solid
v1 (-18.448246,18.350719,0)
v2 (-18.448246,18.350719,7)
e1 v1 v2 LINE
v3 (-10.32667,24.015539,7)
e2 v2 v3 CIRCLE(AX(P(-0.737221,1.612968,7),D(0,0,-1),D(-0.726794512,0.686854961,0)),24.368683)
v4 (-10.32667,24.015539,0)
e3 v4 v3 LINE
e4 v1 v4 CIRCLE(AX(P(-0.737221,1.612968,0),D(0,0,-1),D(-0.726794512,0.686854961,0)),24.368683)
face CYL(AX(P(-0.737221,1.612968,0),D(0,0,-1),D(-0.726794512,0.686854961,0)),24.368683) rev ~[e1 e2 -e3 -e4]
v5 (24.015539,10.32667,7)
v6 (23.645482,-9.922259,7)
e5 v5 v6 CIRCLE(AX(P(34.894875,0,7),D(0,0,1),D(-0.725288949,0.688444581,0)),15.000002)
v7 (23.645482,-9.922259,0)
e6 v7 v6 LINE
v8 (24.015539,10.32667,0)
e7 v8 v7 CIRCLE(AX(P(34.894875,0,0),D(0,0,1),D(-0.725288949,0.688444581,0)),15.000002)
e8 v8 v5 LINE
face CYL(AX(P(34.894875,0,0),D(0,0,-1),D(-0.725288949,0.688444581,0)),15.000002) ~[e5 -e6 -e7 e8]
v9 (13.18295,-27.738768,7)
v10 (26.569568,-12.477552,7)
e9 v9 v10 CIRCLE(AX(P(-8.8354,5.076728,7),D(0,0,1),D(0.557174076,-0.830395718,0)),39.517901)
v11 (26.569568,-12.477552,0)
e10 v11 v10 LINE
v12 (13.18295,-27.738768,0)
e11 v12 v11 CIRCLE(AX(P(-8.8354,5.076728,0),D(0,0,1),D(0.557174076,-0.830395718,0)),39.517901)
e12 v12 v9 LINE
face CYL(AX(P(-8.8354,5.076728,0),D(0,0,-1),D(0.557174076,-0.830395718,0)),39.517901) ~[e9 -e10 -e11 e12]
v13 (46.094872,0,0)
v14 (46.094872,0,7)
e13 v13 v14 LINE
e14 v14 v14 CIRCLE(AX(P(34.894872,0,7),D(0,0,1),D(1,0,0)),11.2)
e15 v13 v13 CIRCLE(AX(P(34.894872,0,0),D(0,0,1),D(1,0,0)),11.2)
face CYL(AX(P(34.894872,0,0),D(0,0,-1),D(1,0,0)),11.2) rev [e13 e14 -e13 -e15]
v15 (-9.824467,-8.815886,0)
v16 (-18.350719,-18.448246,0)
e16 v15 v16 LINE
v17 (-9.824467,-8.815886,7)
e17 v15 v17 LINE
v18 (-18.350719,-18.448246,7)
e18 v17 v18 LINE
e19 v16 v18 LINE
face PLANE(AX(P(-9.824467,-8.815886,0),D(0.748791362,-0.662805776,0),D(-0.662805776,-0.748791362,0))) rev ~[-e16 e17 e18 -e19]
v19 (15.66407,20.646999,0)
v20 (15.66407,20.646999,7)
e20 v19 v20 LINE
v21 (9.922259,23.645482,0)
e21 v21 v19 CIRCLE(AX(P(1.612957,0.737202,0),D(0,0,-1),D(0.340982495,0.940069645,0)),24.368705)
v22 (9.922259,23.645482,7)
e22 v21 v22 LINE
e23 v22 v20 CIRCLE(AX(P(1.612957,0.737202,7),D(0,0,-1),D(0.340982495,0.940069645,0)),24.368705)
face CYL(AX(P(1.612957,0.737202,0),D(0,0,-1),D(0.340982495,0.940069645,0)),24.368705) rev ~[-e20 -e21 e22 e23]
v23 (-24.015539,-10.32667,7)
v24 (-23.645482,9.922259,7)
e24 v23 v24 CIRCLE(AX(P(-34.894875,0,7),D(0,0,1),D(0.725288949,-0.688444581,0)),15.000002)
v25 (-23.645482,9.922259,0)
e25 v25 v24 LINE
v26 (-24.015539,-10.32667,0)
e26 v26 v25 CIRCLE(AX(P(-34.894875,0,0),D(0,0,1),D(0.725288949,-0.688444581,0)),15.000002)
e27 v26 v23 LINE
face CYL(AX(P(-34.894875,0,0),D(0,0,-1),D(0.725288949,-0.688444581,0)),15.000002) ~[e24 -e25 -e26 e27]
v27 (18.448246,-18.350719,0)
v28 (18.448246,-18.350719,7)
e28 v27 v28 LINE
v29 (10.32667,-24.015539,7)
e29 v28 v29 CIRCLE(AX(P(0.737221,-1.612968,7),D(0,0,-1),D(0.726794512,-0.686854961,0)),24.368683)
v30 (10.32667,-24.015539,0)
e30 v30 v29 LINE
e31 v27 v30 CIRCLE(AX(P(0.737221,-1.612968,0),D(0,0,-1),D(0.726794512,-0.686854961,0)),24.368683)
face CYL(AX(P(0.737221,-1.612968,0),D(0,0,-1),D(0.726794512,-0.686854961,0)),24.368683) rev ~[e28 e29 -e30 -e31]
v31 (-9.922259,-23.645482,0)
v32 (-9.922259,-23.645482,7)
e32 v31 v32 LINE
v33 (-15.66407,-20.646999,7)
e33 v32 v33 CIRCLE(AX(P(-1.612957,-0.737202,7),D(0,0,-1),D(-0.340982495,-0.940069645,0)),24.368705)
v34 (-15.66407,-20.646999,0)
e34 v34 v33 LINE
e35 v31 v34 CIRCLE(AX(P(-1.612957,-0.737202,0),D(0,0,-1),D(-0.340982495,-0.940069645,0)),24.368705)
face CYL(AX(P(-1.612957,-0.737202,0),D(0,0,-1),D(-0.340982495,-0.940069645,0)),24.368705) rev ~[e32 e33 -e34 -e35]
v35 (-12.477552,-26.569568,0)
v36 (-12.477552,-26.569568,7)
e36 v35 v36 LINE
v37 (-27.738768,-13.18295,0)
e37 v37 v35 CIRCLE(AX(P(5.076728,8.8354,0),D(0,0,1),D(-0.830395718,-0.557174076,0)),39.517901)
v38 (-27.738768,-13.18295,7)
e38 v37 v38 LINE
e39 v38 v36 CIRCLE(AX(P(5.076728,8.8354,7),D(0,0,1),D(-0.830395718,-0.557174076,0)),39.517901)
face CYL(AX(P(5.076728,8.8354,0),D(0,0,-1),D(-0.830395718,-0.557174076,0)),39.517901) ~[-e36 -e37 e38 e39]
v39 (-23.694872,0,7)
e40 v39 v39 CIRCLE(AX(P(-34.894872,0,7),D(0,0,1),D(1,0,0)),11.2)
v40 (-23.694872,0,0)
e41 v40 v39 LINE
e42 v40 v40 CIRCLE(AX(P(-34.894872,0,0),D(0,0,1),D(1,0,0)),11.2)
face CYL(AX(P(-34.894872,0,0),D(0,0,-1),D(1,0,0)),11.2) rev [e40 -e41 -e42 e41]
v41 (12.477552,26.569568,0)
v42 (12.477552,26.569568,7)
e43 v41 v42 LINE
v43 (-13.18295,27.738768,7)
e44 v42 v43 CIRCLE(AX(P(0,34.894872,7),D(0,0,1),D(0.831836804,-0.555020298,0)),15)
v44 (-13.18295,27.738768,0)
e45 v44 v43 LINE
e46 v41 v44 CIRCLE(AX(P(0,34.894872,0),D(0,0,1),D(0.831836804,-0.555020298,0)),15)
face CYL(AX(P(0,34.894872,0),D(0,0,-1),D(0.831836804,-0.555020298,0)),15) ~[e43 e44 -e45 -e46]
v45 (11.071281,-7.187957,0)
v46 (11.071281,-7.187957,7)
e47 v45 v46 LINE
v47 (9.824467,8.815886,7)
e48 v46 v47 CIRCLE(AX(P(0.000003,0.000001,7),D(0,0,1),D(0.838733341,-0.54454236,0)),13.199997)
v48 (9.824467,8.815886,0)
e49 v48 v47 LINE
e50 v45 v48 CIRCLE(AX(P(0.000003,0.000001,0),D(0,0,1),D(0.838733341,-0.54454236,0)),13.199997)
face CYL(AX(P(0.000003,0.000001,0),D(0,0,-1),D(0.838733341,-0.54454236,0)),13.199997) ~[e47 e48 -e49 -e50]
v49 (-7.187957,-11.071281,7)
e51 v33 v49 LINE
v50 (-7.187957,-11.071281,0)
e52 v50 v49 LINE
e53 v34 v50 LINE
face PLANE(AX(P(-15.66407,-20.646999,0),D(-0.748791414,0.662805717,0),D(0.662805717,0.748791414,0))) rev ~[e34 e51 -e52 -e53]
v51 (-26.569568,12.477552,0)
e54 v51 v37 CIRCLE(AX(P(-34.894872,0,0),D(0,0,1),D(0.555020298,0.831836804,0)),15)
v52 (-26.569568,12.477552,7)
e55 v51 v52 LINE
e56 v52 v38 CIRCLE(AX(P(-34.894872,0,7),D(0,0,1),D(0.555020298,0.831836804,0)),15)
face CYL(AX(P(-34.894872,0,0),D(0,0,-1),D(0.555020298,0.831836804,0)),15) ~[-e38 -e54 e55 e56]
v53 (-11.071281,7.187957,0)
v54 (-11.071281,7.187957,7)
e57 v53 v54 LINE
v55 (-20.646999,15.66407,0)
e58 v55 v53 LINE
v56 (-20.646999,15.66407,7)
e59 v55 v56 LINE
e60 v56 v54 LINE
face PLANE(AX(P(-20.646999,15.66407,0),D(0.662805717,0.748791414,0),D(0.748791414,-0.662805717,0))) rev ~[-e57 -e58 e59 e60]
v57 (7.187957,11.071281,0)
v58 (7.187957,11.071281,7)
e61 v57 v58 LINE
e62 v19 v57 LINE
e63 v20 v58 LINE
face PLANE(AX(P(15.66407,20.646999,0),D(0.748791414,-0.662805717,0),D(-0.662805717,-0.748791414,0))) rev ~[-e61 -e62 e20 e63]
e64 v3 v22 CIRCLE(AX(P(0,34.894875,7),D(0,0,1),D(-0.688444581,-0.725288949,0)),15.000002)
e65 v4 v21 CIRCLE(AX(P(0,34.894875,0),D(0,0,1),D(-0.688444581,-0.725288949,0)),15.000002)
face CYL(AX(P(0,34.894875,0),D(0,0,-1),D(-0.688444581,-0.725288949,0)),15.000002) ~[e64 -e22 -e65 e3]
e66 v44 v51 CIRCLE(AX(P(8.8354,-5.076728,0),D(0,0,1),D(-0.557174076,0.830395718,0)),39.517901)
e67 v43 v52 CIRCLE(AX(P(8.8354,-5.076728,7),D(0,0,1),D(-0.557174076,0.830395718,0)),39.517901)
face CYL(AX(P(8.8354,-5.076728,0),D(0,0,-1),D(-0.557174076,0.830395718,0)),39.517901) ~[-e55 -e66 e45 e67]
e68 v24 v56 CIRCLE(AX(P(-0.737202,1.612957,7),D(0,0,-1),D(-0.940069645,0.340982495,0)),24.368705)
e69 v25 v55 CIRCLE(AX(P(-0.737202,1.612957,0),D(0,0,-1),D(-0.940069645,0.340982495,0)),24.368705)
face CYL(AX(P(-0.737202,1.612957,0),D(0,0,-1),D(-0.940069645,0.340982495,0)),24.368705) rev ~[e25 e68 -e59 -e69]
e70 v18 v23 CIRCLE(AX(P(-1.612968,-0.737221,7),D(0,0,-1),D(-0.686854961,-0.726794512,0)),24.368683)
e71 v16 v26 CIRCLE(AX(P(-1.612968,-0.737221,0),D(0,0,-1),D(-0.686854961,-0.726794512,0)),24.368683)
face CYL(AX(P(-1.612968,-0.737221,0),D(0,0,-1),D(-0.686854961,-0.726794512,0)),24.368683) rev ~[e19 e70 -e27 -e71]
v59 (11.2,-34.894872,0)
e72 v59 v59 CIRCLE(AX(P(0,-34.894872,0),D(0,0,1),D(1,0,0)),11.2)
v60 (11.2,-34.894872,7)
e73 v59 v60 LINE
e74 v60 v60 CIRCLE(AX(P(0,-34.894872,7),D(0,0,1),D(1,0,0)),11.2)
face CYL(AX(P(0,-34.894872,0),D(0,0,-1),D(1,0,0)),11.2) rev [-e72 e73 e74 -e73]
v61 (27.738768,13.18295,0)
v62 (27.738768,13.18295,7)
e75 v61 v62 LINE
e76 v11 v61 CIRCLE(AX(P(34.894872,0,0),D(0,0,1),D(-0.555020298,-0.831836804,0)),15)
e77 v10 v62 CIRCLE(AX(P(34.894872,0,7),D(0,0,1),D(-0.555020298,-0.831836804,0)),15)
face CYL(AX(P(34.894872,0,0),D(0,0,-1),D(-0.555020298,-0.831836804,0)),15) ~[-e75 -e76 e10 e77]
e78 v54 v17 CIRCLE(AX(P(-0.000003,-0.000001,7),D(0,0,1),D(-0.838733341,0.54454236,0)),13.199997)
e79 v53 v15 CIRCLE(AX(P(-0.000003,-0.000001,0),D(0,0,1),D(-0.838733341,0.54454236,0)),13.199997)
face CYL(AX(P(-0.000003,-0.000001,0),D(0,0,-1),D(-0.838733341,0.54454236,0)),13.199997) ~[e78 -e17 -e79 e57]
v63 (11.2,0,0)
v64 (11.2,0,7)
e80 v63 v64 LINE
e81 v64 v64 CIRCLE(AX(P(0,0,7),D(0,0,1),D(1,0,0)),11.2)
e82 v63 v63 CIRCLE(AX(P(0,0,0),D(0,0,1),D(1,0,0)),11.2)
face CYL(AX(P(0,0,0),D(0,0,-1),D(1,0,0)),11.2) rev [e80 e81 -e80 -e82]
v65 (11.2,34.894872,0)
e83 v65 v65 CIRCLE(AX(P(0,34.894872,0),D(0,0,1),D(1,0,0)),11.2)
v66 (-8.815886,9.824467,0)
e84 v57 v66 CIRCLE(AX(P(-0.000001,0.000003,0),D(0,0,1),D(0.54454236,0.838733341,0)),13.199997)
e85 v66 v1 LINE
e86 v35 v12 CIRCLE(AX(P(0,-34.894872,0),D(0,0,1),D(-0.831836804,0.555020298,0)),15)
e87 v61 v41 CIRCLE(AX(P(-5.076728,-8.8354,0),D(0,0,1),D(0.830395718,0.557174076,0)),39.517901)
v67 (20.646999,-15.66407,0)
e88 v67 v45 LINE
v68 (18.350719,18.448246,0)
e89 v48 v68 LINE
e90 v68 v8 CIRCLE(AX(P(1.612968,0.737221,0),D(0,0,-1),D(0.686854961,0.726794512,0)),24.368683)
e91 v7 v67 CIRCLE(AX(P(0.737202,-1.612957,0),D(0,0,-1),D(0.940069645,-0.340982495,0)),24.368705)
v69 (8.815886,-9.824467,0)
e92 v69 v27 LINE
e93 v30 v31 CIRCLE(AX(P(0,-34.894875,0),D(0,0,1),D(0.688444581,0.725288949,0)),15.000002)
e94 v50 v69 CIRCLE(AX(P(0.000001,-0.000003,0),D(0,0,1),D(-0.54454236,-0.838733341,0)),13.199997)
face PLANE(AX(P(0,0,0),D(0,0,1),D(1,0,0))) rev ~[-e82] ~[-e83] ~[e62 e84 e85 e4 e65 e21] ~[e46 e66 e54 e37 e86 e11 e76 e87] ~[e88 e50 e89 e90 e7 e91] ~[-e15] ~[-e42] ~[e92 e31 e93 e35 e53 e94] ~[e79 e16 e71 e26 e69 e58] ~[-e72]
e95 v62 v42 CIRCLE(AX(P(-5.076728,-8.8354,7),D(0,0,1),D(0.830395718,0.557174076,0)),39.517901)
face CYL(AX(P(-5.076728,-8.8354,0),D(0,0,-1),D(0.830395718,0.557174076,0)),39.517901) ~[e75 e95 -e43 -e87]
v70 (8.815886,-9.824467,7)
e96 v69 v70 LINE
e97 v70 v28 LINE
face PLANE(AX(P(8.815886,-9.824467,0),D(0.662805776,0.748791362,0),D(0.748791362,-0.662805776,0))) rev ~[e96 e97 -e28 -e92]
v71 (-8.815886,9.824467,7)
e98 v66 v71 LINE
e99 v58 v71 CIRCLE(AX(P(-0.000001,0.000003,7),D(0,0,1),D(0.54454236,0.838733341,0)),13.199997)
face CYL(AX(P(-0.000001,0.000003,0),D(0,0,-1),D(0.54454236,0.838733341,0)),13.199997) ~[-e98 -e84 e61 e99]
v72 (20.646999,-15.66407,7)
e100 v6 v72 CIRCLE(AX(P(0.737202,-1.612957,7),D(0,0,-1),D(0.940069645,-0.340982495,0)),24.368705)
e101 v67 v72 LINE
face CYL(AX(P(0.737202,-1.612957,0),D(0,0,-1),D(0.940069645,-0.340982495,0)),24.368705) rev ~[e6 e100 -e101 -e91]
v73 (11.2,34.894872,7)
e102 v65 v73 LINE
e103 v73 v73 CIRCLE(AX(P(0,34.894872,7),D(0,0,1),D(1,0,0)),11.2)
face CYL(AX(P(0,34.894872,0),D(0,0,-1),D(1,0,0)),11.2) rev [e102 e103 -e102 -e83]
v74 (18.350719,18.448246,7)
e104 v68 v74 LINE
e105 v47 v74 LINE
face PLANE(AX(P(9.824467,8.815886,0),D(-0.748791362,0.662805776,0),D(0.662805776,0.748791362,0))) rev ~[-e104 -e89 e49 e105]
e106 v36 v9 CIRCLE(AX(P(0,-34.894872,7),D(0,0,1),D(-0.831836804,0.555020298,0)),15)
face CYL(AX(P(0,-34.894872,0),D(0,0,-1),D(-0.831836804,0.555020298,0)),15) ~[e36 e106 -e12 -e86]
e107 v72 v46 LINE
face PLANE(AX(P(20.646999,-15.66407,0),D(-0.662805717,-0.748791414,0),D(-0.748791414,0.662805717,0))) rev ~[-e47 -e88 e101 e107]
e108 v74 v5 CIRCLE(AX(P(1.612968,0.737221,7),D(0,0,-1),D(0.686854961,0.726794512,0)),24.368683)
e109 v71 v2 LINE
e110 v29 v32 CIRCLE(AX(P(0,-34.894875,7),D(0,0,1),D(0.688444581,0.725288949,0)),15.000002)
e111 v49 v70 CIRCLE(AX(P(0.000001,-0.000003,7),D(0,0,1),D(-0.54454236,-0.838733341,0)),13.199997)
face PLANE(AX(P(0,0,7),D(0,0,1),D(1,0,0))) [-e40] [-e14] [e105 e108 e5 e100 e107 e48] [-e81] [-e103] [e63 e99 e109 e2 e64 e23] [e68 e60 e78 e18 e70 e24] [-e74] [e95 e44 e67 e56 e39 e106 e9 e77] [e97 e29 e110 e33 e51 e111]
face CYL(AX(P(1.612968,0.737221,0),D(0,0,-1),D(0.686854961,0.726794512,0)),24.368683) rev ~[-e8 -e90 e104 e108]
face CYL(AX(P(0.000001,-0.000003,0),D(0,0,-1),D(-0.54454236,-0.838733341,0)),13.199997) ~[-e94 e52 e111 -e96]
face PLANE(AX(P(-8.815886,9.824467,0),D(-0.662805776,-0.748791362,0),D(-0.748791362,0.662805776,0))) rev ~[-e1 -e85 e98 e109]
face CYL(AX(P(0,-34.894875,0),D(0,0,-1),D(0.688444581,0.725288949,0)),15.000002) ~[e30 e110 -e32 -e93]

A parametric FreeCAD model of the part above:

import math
import FreeCAD as App
import Part
import Sketcher

doc = App.newDocument("Part")
body = doc.addObject("PartDesign::Body", "Body")

# Sketch on XY plane
sketch1 = body.newObject("Sketcher::SketchObject", "Sketch")
sketch1.AttachmentSupport = (doc.getObject("XY_Plane"), [""])
sketch1.MapMode = "FlatFace"
sketch1.addGeometry([
    Part.ArcOfCircle(Part.Circle(App.Vector(9, -5, 0), App.Vector(0, 0, 1), 40), math.radians(124), math.radians(154)),  # 0
    Part.ArcOfCircle(Part.Circle(App.Vector(-35, 0, 0), App.Vector(0, 0, 1), 15), math.radians(56), math.radians(298)),  # 1
    Part.ArcOfCircle(Part.Circle(App.Vector(5, 9, 0), App.Vector(0, 0, 1), 40), math.radians(-146), math.radians(-116)),  # 2
    Part.ArcOfCircle(Part.Circle(App.Vector(0, -35, 0), App.Vector(0, 0, 1), 15), math.radians(146), math.radians(388)),  # 3
    Part.ArcOfCircle(Part.Circle(App.Vector(-9, 5, 0), App.Vector(0, 0, 1), 40), math.radians(-56), math.radians(-26)),  # 4
    Part.ArcOfCircle(Part.Circle(App.Vector(35, 0, 0), App.Vector(0, 0, 1), 15), math.radians(-124), math.radians(118)),  # 5
    Part.ArcOfCircle(Part.Circle(App.Vector(-5, -9, 0), App.Vector(0, 0, 1), 40), math.radians(34), math.radians(64)),  # 6
    Part.ArcOfCircle(Part.Circle(App.Vector(0, 35, 0), App.Vector(0, 0, 1), 15), math.radians(-34), math.radians(208)),  # 7
    Part.Circle(App.Vector(0, -35, 0), App.Vector(0, 0, 1), 11),  # 8
    Part.Circle(App.Vector(-35, 0, 0), App.Vector(0, 0, 1), 11),  # 9
    Part.ArcOfCircle(Part.Circle(App.Vector(-1, 2, 0), App.Vector(0, 0, 1), 24), math.radians(144.79), math.radians(160.06)),  # 10
    Part.LineSegment(App.Vector(-21, 16, 0), App.Vector(-11, 7, 0)),  # 11
    Part.ArcOfCircle(Part.Circle(App.Vector(0, 0, 0), App.Vector(0, 0, 1), 13), math.radians(147), math.radians(222)),  # 12
    Part.LineSegment(App.Vector(-10, -9, 0), App.Vector(-18, -18, 0)),  # 13
    Part.ArcOfCircle(Part.Circle(App.Vector(-2, -1, 0), App.Vector(0, 0, 1), 24), math.radians(-157), math.radians(-133)),  # 14
    Part.ArcOfCircle(Part.Circle(App.Vector(-35, 0, 0), App.Vector(0, 0, 1), 15), math.radians(-44), math.radians(41)),  # 15
    Part.Circle(App.Vector(0, 0, 0), App.Vector(0, 0, 1), 11),  # 16
    Part.ArcOfCircle(Part.Circle(App.Vector(1, -2, 0), App.Vector(0, 0, 1), 24), math.radians(-67), math.radians(-43)),  # 17
    Part.ArcOfCircle(Part.Circle(App.Vector(0, -35, 0), App.Vector(0, 0, 1), 15), math.radians(46), math.radians(131)),  # 18
    Part.ArcOfCircle(Part.Circle(App.Vector(-2, -1, 0), App.Vector(0, 0, 1), 24), math.radians(-125.21), math.radians(-109.94)),  # 19
    Part.LineSegment(App.Vector(-16, -21, 0), App.Vector(-7, -11, 0)),  # 20
    Part.ArcOfCircle(Part.Circle(App.Vector(0, 0, 0), App.Vector(0, 0, 1), 13), math.radians(-123), math.radians(-48)),  # 21
    Part.LineSegment(App.Vector(9, -10, 0), App.Vector(18, -18, 0)),  # 22
    Part.Circle(App.Vector(35, 0, 0), App.Vector(0, 0, 1), 11),  # 23
    Part.LineSegment(App.Vector(-9, 10, 0), App.Vector(-18, 18, 0)),  # 24
    Part.ArcOfCircle(Part.Circle(App.Vector(-1, 2, 0), App.Vector(0, 0, 1), 24), math.radians(113), math.radians(137)),  # 25
    Part.ArcOfCircle(Part.Circle(App.Vector(0, 35, 0), App.Vector(0, 0, 1), 15), math.radians(-134), math.radians(-49)),  # 26
    Part.ArcOfCircle(Part.Circle(App.Vector(2, 1, 0), App.Vector(0, 0, 1), 24), math.radians(54.79), math.radians(70.06)),  # 27
    Part.LineSegment(App.Vector(16, 21, 0), App.Vector(7, 11, 0)),  # 28
    Part.ArcOfCircle(Part.Circle(App.Vector(0, 0, 0), App.Vector(0, 0, 1), 13), math.radians(57), math.radians(132)),  # 29
    Part.Circle(App.Vector(0, 35, 0), App.Vector(0, 0, 1), 11),  # 30
    Part.LineSegment(App.Vector(10, 9, 0), App.Vector(18, 18, 0)),  # 31
    Part.ArcOfCircle(Part.Circle(App.Vector(2, 1, 0), App.Vector(0, 0, 1), 24), math.radians(23), math.radians(47)),  # 32
    Part.ArcOfCircle(Part.Circle(App.Vector(35, 0, 0), App.Vector(0, 0, 1), 15), math.radians(136), math.radians(221)),  # 33
    Part.ArcOfCircle(Part.Circle(App.Vector(1, -2, 0), App.Vector(0, 0, 1), 24), math.radians(-35.21), math.radians(-19.94)),  # 34
    Part.LineSegment(App.Vector(21, -16, 0), App.Vector(11, -7, 0)),  # 35
    Part.ArcOfCircle(Part.Circle(App.Vector(0, 0, 0), App.Vector(0, 0, 1), 13), math.radians(-33), math.radians(42)),  # 36
], False)
sketch1.addConstraint([
    Sketcher.Constraint("Coincident", 0, 2, 1, 1),
    Sketcher.Constraint("Coincident", 1, 2, 2, 1),
    Sketcher.Constraint("Coincident", 2, 2, 3, 1),
    Sketcher.Constraint("Coincident", 3, 2, 4, 1),
    Sketcher.Constraint("Coincident", 4, 2, 5, 1),
    Sketcher.Constraint("Coincident", 5, 2, 6, 1),
    Sketcher.Constraint("Coincident", 6, 2, 7, 1),
    Sketcher.Constraint("Coincident", 7, 2, 0, 1),
    Sketcher.Constraint("Coincident", 10, 1, 11, 1),
    Sketcher.Constraint("Coincident", 11, 2, 12, 1),
    Sketcher.Constraint("Coincident", 12, 2, 13, 1),
    Sketcher.Constraint("Coincident", 13, 2, 14, 2),
    Sketcher.Constraint("Coincident", 14, 1, 15, 1),
    Sketcher.Constraint("Coincident", 15, 2, 10, 2),
    Sketcher.Constraint("Coincident", 17, 1, 18, 1),
    Sketcher.Constraint("Coincident", 18, 2, 19, 2),
    Sketcher.Constraint("Coincident", 19, 1, 20, 1),
    Sketcher.Constraint("Coincident", 20, 2, 21, 1),
    Sketcher.Constraint("Coincident", 21, 2, 22, 1),
    Sketcher.Constraint("Coincident", 22, 2, 17, 2),
    Sketcher.Constraint("Coincident", 24, 2, 25, 2),
    Sketcher.Constraint("Coincident", 25, 1, 26, 1),
    Sketcher.Constraint("Coincident", 26, 2, 27, 2),
    Sketcher.Constraint("Coincident", 27, 1, 28, 1),
    Sketcher.Constraint("Coincident", 28, 2, 29, 1),
    Sketcher.Constraint("Coincident", 29, 2, 24, 1),
    Sketcher.Constraint("Coincident", 31, 2, 32, 2),
    Sketcher.Constraint("Coincident", 32, 1, 33, 1),
    Sketcher.Constraint("Coincident", 33, 2, 34, 2),
    Sketcher.Constraint("Coincident", 34, 1, 35, 1),
    Sketcher.Constraint("Coincident", 35, 2, 36, 1),
    Sketcher.Constraint("Coincident", 36, 2, 31, 1),
    Sketcher.Constraint("Coincident", 12, 3, -1, 1),
    Sketcher.Constraint("Coincident", 16, 3, -1, 1),
    Sketcher.Constraint("Coincident", 21, 3, -1, 1),
    Sketcher.Constraint("Coincident", 29, 3, -1, 1),
    Sketcher.Constraint("Coincident", 36, 3, -1, 1),
    Sketcher.Constraint("Coincident", 8, 3, 3, 3),
    Sketcher.Constraint("Coincident", 9, 3, 1, 3),
    Sketcher.Constraint("Coincident", 15, 3, 1, 3),
    Sketcher.Constraint("Coincident", 18, 3, 3, 3),
    Sketcher.Constraint("Coincident", 23, 3, 5, 3),
    Sketcher.Constraint("Coincident", 26, 3, 7, 3),
    Sketcher.Constraint("Coincident", 30, 3, 7, 3),
    Sketcher.Constraint("Coincident", 33, 3, 5, 3),
    Sketcher.Constraint("Equal", 0, 2),
    Sketcher.Constraint("Equal", 1, 3),
    Sketcher.Constraint("Equal", 2, 4),
    Sketcher.Constraint("Equal", 3, 5),
    Sketcher.Constraint("Equal", 4, 6),
    Sketcher.Constraint("Equal", 5, 7),
    Sketcher.Constraint("Equal", 8, 9),
    Sketcher.Constraint("Equal", 7, 15),
    Sketcher.Constraint("Equal", 9, 16),
    Sketcher.Constraint("Equal", 14, 17),
    Sketcher.Constraint("Equal", 15, 18),
    Sketcher.Constraint("Equal", 10, 19),
    Sketcher.Constraint("Equal", 12, 21),
    Sketcher.Constraint("Equal", 16, 23),
    Sketcher.Constraint("Equal", 17, 25),
    Sketcher.Constraint("Equal", 18, 26),
    Sketcher.Constraint("Equal", 19, 27),
    Sketcher.Constraint("Equal", 21, 29),
    Sketcher.Constraint("Equal", 23, 30),
    Sketcher.Constraint("Equal", 25, 32),
    Sketcher.Constraint("Equal", 26, 33),
    Sketcher.Constraint("Equal", 27, 34),
    Sketcher.Constraint("Equal", 29, 36),
    Sketcher.Constraint("Symmetric", 0, 3, 4, 3, -1, 1),
    Sketcher.Constraint("Symmetric", 1, 3, 5, 3, -1, 1),
    Sketcher.Constraint("Symmetric", 2, 3, 6, 3, -1, 1),
    Sketcher.Constraint("Symmetric", 3, 3, 7, 3, -1, 1),
    Sketcher.Constraint("Symmetric", 17, 3, 25, 3, -1, 1),
    Sketcher.Constraint("Symmetric", 19, 3, 27, 3, -1, 1),
    Sketcher.Constraint("Symmetric", 14, 3, 32, 3, -1, 1),
    Sketcher.Constraint("Symmetric", 10, 3, 34, 3, -1, 1),
    Sketcher.Constraint("PointOnObject", 1, 3, -1),
    Sketcher.Constraint("PointOnObject", 3, 3, -2),
    Sketcher.Constraint("Perpendicular", 11, 13),
    Sketcher.Constraint("Parallel", 13, 20),
    Sketcher.Constraint("Perpendicular", 20, 22),
    Sketcher.Constraint("Parallel", 22, 24),
    Sketcher.Constraint("Perpendicular", 24, 28),
    Sketcher.Constraint("Parallel", 28, 31),
    Sketcher.Constraint("Perpendicular", 31, 35),
    Sketcher.Constraint("Equal", 11, 20),
    Sketcher.Constraint("Equal", 13, 22),
    Sketcher.Constraint("Equal", 22, 24),
    Sketcher.Constraint("Equal", 20, 28),
    Sketcher.Constraint("Equal", 24, 31),
    Sketcher.Constraint("Equal", 28, 35),
    Sketcher.Constraint("Radius", 1, 15.0),
    Sketcher.Constraint("Diameter", 8, 22.4),
    Sketcher.Constraint("Radius", 0, 39.517901),
    Sketcher.Constraint("DistanceX", 10, 1, -1, 1, 20.646999),
    Sketcher.Constraint("DistanceY", 19, 1, -1, 1, 20.646999),
    Sketcher.Constraint("Radius", 10, 24.368705),
    Sketcher.Constraint("Radius", 12, 13.199997),
    Sketcher.Constraint("Radius", 14, 24.368683),
    Sketcher.Constraint("DistanceX", -1, 1, 0, 3, 8.8354),
    Sketcher.Constraint("DistanceY", -1, 1, 2, 3, 8.8354),
    Sketcher.Constraint("Distance", 11, 12.788232),
    Sketcher.Constraint("DistanceX", 14, 3, -1, 1, 1.612968),
    Sketcher.Constraint("DistanceY", 14, 3, -1, 1, 0.737221),
    Sketcher.Constraint("DistanceX", -1, 1, 17, 3, 0.737221),
    Sketcher.Constraint("DistanceY", 17, 3, -1, 1, 1.612968),
    Sketcher.Constraint("DistanceX", 0, 2, -1, 1, 26.569568),
    Sketcher.Constraint("DistanceY", 1, 2, -1, 1, 13.18295),
    Sketcher.Constraint("DistanceY", 2, 2, -1, 1, 26.569568),
    Sketcher.Constraint("DistanceX", -1, 1, 3, 2, 13.18295),
    Sketcher.Constraint("DistanceY", -1, 1, 10, 1, 15.66407),
    Sketcher.Constraint("DistanceX", 13, 2, -1, 1, 18.350719),
    Sketcher.Constraint("DistanceX", 15, 2, -1, 1, 23.645482),
    Sketcher.Constraint("DistanceX", 18, 2, -1, 1, 9.922259),
])
pad1 = body.newObject("PartDesign::Pad", "Pad")
pad1.Profile = sketch1
pad1.Length = 7

doc.recompute()
